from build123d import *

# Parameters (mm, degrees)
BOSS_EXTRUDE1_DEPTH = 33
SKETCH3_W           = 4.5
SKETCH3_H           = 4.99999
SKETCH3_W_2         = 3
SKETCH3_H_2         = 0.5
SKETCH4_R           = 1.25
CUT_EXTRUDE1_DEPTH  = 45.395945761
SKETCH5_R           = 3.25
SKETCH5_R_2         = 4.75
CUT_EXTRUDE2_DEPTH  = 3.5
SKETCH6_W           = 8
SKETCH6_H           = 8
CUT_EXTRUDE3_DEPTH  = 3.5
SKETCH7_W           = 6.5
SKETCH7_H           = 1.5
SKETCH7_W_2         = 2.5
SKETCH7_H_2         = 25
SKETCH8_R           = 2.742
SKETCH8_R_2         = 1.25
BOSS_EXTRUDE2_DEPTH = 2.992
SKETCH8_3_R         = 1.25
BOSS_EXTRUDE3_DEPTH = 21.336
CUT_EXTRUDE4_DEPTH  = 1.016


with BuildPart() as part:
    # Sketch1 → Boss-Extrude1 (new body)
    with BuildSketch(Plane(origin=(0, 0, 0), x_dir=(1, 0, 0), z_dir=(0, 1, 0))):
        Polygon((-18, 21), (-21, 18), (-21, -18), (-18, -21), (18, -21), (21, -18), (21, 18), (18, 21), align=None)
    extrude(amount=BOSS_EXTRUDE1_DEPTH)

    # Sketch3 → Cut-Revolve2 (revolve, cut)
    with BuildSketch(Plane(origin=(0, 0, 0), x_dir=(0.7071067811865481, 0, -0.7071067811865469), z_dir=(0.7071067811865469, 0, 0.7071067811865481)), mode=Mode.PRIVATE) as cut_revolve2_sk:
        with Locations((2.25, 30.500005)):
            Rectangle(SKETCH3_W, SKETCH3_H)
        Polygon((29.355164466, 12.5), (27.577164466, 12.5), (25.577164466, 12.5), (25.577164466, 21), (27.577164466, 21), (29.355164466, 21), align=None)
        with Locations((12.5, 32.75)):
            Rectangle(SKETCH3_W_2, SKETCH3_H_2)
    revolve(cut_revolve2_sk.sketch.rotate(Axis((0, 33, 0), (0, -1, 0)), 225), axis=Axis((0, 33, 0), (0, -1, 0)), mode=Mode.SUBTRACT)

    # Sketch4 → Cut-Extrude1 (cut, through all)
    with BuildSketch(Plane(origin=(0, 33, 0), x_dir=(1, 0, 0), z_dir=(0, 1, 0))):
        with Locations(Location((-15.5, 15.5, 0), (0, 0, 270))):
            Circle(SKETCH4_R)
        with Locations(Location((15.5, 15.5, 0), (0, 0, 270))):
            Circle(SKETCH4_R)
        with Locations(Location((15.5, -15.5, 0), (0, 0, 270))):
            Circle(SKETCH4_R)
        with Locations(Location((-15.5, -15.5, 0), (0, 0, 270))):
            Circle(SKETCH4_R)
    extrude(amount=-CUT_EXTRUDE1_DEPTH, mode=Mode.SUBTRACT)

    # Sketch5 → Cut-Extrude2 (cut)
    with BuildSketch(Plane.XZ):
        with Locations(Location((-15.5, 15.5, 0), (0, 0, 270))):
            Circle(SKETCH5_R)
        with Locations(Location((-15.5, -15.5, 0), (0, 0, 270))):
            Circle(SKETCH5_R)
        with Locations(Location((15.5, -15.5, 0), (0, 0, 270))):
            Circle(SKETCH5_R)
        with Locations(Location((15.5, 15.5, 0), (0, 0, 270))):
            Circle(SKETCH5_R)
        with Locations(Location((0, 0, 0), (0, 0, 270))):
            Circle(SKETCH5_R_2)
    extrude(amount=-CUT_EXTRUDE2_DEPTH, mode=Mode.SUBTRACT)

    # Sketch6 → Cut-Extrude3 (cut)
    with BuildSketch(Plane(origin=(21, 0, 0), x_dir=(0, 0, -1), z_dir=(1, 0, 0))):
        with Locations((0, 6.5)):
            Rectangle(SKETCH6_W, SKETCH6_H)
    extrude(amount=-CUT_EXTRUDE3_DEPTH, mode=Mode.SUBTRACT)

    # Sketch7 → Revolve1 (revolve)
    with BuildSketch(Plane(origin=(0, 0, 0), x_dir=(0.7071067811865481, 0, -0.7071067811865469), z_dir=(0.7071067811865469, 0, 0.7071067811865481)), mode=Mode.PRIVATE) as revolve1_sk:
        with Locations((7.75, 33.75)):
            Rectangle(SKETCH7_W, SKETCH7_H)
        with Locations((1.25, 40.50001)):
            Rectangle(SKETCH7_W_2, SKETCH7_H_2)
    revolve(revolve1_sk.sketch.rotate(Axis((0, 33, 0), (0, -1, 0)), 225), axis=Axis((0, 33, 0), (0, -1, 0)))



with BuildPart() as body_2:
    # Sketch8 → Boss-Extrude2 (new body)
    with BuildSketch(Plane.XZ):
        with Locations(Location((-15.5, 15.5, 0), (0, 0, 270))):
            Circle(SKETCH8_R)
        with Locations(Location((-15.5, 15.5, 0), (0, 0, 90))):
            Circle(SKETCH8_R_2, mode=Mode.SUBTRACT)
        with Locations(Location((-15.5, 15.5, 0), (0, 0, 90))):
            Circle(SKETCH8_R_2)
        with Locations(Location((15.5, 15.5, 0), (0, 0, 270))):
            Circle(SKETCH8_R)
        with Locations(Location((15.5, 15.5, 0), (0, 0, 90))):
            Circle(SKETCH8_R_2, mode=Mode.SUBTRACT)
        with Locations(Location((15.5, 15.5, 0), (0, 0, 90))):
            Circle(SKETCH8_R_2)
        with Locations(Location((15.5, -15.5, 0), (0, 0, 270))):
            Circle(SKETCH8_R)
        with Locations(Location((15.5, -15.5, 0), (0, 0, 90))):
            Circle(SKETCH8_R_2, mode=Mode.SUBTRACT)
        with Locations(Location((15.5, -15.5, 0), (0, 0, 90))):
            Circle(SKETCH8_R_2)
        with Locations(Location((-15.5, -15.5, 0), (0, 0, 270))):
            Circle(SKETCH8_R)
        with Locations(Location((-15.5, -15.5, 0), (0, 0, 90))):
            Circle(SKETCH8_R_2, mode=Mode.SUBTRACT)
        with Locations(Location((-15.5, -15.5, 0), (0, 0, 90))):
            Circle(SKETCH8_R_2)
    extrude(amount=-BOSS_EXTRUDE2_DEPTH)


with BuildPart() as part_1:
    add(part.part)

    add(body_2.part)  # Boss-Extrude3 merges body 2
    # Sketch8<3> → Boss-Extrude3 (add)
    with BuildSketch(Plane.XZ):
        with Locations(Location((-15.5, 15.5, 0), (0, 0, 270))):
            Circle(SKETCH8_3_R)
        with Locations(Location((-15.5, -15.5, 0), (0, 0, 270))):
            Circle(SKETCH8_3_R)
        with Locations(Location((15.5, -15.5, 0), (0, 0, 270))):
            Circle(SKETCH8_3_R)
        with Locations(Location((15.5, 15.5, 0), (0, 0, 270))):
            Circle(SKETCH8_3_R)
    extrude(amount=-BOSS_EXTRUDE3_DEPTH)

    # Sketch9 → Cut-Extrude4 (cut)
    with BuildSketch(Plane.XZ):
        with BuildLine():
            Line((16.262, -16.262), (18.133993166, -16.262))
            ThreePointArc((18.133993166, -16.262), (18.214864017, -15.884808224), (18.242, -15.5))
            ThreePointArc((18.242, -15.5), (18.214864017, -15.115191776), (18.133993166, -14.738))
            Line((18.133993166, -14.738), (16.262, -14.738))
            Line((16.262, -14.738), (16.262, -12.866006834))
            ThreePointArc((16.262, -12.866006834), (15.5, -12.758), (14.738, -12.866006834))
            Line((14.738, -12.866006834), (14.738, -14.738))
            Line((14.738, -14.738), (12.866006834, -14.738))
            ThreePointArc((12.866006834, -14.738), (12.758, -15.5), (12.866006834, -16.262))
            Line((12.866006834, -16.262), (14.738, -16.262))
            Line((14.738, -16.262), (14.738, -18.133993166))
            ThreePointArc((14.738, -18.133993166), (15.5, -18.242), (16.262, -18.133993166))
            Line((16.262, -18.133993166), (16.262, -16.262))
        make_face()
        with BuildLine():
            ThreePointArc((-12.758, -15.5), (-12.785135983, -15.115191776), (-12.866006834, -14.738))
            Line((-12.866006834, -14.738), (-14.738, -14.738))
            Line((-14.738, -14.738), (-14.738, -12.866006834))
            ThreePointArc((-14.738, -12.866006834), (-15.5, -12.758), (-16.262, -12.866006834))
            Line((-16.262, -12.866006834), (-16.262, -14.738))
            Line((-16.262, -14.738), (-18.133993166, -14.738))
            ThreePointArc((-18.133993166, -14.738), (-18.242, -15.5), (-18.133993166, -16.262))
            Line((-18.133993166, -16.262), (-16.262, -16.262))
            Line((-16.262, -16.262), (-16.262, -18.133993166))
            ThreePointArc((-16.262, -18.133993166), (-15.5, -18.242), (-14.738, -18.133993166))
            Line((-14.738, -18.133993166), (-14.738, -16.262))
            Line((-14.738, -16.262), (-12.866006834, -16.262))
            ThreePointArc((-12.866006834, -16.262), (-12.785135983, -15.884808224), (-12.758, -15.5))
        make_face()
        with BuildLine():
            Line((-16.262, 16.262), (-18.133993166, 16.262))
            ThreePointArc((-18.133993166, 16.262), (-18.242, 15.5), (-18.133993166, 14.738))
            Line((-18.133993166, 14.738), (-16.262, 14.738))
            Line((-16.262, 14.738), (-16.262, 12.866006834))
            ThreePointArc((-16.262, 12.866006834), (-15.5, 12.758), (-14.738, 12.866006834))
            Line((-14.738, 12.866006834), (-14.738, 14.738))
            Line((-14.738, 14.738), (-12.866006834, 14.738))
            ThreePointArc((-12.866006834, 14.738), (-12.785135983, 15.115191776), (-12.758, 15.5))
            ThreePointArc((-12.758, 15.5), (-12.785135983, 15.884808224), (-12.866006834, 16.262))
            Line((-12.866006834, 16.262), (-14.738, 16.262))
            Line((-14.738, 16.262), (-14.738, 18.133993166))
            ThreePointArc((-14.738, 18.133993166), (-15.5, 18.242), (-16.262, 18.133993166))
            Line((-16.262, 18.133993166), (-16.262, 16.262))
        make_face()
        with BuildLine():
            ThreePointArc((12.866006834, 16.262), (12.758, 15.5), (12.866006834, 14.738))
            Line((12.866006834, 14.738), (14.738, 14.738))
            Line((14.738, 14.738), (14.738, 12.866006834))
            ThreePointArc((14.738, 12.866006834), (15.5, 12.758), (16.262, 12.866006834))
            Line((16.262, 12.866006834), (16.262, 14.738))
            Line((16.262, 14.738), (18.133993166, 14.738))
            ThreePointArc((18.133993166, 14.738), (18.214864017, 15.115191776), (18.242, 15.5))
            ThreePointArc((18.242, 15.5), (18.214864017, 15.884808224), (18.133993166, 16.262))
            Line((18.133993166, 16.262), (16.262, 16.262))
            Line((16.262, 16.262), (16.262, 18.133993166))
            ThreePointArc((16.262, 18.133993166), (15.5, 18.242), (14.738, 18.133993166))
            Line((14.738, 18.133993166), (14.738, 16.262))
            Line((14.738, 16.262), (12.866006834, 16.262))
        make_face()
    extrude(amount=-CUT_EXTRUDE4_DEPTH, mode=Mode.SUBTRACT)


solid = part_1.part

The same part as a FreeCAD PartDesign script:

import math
import FreeCAD as App
import Part
import Sketcher

V = App.Vector

doc = App.newDocument("Part")
body = doc.addObject("PartDesign::Body", "Body")

# Sketch on XZ plane
sketch1 = body.newObject("Sketcher::SketchObject", "Sketch")
sketch1.AttachmentSupport = (doc.getObject("XZ_Plane"), [""])
sketch1.MapMode = "FlatFace"
sketch1.addGeometry(Part.LineSegment(V(-18, -21, 0), V(-21, -18, 0)), False)
sketch1.addGeometry(Part.LineSegment(V(-21, -18, 0), V(-21, 18, 0)), False)
sketch1.addGeometry(Part.LineSegment(V(-21, 18, 0), V(-18, 21, 0)), False)
sketch1.addGeometry(Part.LineSegment(V(-18, 21, 0), V(18, 21, 0)), False)
sketch1.addGeometry(Part.LineSegment(V(18, 21, 0), V(21, 18, 0)), False)
sketch1.addGeometry(Part.LineSegment(V(21, 18, 0), V(21, -18, 0)), False)
sketch1.addGeometry(Part.LineSegment(V(21, -18, 0), V(18, -21, 0)), False)
sketch1.addGeometry(Part.LineSegment(V(18, -21, 0), V(-18, -21, 0)), False)
sketch1.addConstraint(Sketcher.Constraint("Coincident", 0, 2, 1, 1))
sketch1.addConstraint(Sketcher.Constraint("Coincident", 1, 2, 2, 1))
sketch1.addConstraint(Sketcher.Constraint("Coincident", 2, 2, 3, 1))
sketch1.addConstraint(Sketcher.Constraint("Coincident", 3, 2, 4, 1))
sketch1.addConstraint(Sketcher.Constraint("Coincident", 4, 2, 5, 1))
sketch1.addConstraint(Sketcher.Constraint("Coincident", 5, 2, 6, 1))
sketch1.addConstraint(Sketcher.Constraint("Coincident", 6, 2, 7, 1))
sketch1.addConstraint(Sketcher.Constraint("Coincident", 7, 2, 0, 1))
sketch1.addConstraint(Sketcher.Constraint("Vertical", 1))
sketch1.addConstraint(Sketcher.Constraint("Horizontal", 3))
sketch1.addConstraint(Sketcher.Constraint("Vertical", 5))
sketch1.addConstraint(Sketcher.Constraint("Horizontal", 7))
sketch1.addConstraint(Sketcher.Constraint("Symmetric", 0, 2, 4, 2, -1, 1))
sketch1.addConstraint(Sketcher.Constraint("Symmetric", 2, 2, 6, 2, -1, 1))
sketch1.addConstraint(Sketcher.Constraint("Perpendicular", 0, 2))
sketch1.addConstraint(Sketcher.Constraint("Perpendicular", 2, 4))
sketch1.addConstraint(Sketcher.Constraint("Perpendicular", 4, 6))
sketch1.addConstraint(Sketcher.Constraint("Horizontal", 1, 2, 4, 2))
sketch1.addConstraint(Sketcher.Constraint("Vertical", 3, 2, 6, 2))
sketch1.addConstraint(Sketcher.Constraint("Equal", 7, 1))
sketch1.addConstraint(Sketcher.Constraint("DistanceX", 3, 1, 3, 2, 36.0))
sketch1.addConstraint(Sketcher.Constraint("DistanceX", 0, 2, -1, 1, 21.0))
pad1 = body.newObject("PartDesign::Pad", "Pad")
pad1.Profile = sketch1
pad1.Length = 33
pad1.Reversed = True

# Sketch on an angled plane
sketch2 = body.newObject("Sketcher::SketchObject", "Sketch001")
sketch2.Placement = App.Placement(V(0, 0, 0), App.Rotation(V(0.707106781, 0, -0.707106781), V(0, 0.999999999, 0), V(0.707106781, 0, 0.707106781), "ZXY"))
sketch2.addGeometry(Part.LineSegment(V(0, 33, 0), V(0, 28, 0)), False)
sketch2.addGeometry(Part.LineSegment(V(0, 28, 0), V(4.5, 28, 0)), False)
sketch2.addGeometry(Part.LineSegment(V(4.5, 28, 0), V(4.5, 33, 0)), False)
sketch2.addGeometry(Part.LineSegment(V(4.5, 33, 0), V(0, 33, 0)), False)
sketch2.addGeometry(Part.LineSegment(V(25.58, 12.5, 0), V(29.36, 12.5, 0)), False)
sketch2.addGeometry(Part.LineSegment(V(29.36, 12.5, 0), V(29.36, 21, 0)), False)
sketch2.addGeometry(Part.LineSegment(V(29.36, 21, 0), V(25.58, 21, 0)), False)
sketch2.addGeometry(Part.LineSegment(V(25.58, 21, 0), V(25.58, 12.5, 0)), False)
sketch2.addGeometry(Part.LineSegment(V(11, 33, 0), V(11, 32.5, 0)), False)
sketch2.addGeometry(Part.LineSegment(V(11, 32.5, 0), V(14, 32.5, 0)), False)
sketch2.addGeometry(Part.LineSegment(V(14, 32.5, 0), V(14, 33, 0)), False)
sketch2.addGeometry(Part.LineSegment(V(14, 33, 0), V(11, 33, 0)), False)
sketch2.addConstraint(Sketcher.Constraint("Coincident", 0, 2, 1, 1))
sketch2.addConstraint(Sketcher.Constraint("Coincident", 1, 2, 2, 1))
sketch2.addConstraint(Sketcher.Constraint("Coincident", 2, 2, 3, 1))
sketch2.addConstraint(Sketcher.Constraint("Coincident", 3, 2, 0, 1))
sketch2.addConstraint(Sketcher.Constraint("Coincident", 4, 2, 5, 1))
sketch2.addConstraint(Sketcher.Constraint("Coincident", 5, 2, 6, 1))
sketch2.addConstraint(Sketcher.Constraint("Coincident", 6, 2, 7, 1))
sketch2.addConstraint(Sketcher.Constraint("Coincident", 7, 2, 4, 1))
sketch2.addConstraint(Sketcher.Constraint("Coincident", 8, 2, 9, 1))
sketch2.addConstraint(Sketcher.Constraint("Coincident", 9, 2, 10, 1))
sketch2.addConstraint(Sketcher.Constraint("Coincident", 10, 2, 11, 1))
sketch2.addConstraint(Sketcher.Constraint("Coincident", 11, 2, 8, 1))
sketch2.addConstraint(Sketcher.Constraint("Vertical", 0))
sketch2.addConstraint(Sketcher.Constraint("Horizontal", 1))
sketch2.addConstraint(Sketcher.Constraint("Vertical", 2))
sketch2.addConstraint(Sketcher.Constraint("Horizontal", 3))
sketch2.addConstraint(Sketcher.Constraint("Horizontal", 4))
sketch2.addConstraint(Sketcher.Constraint("Vertical", 5))
sketch2.addConstraint(Sketcher.Constraint("Horizontal", 6))
sketch2.addConstraint(Sketcher.Constraint("Vertical", 7))
sketch2.addConstraint(Sketcher.Constraint("Vertical", 8))
sketch2.addConstraint(Sketcher.Constraint("Horizontal", 9))
sketch2.addConstraint(Sketcher.Constraint("Vertical", 10))
sketch2.addConstraint(Sketcher.Constraint("Horizontal", 11))
sketch2.addConstraint(Sketcher.Constraint("PointOnObject", 0, 2, -2))
sketch2.addConstraint(Sketcher.Constraint("Horizontal", 3, 2, 10, 2))
sketch2.addConstraint(Sketcher.Constraint("DistanceX", 9, 1, 9, 2, 3.0))
sketch2.addConstraint(Sketcher.Constraint("DistanceX", 1, 1, 1, 2, 4.5))
sketch2.addConstraint(Sketcher.Constraint("DistanceY", 5, 1, 5, 2, 8.5))
sketch2.addConstraint(Sketcher.Constraint("DistanceY", 8, 2, 8, 1, 0.5))
sketch2.addConstraint(Sketcher.Constraint("DistanceY", -1, 1, 2, 2, 33.0))
sketch2.addConstraint(Sketcher.Constraint("DistanceY", -1, 1, 5, 2, 21.0))
sketch2.addConstraint(Sketcher.Constraint("DistanceX", -1, 1, 8, 2, 11.0))
sketch2.addConstraint(Sketcher.Constraint("DistanceX", 4, 1, 4, 2, 3.778))
sketch2.addConstraint(Sketcher.Constraint("DistanceY", 0, 2, 0, 1, 4.99999))
sketch2.addConstraint(Sketcher.Constraint("DistanceX", -1, 1, 4, 2, 29.355164))
groove = body.newObject("PartDesign::Groove", "Groove")
groove.Profile = sketch2
groove.ReferenceAxis = (sketch2, ["V_Axis"])
groove.Angle = 360

# Sketch on XZ plane
sketch3 = body.newObject("Sketcher::SketchObject", "Sketch002")
sketch3.AttachmentSupport = (doc.getObject("XZ_Plane"), [""])
sketch3.MapMode = "FlatFace"
sketch3.AttachmentOffset = App.Placement(V(0, 0, -33), App.Rotation())
sketch3.addGeometry(Part.Circle(V(-15.5, -15.5, 0), V(0, 0, 1), 1.2), False)
sketch3.addGeometry(Part.Circle(V(15.5, -15.5, 0), V(0, 0, 1), 1.2), False)
sketch3.addGeometry(Part.Circle(V(15.5, 15.5, 0), V(0, 0, 1), 1.2), False)
sketch3.addGeometry(Part.Circle(V(-15.5, 15.5, 0), V(0, 0, 1), 1.2), False)
sketch3.addConstraint(Sketcher.Constraint("Equal", 0, 1))
sketch3.addConstraint(Sketcher.Constraint("Equal", 1, 2))
sketch3.addConstraint(Sketcher.Constraint("Equal", 2, 3))
sketch3.addConstraint(Sketcher.Constraint("Symmetric", 0, 3, 2, 3, -1, 1))
sketch3.addConstraint(Sketcher.Constraint("Symmetric", 1, 3, 3, 3, -1, 1))
sketch3.addConstraint(Sketcher.Constraint("Symmetric", 0, 3, 1, 3, -2))
sketch3.addConstraint(Sketcher.Constraint("Diameter", 0, 2.5))
sketch3.addConstraint(Sketcher.Constraint("DistanceX", 0, 3, 1, 3, 31.0))
sketch3.addConstraint(Sketcher.Constraint("DistanceY", 1, 3, 2, 3, 31.0))
pocket1 = body.newObject("PartDesign::Pocket", "Pocket")
pocket1.Profile = sketch3
pocket1.Type = "ThroughAll"
pocket1.Reversed = True

# Sketch on XZ plane
sketch4 = body.newObject("Sketcher::SketchObject", "Sketch003")
sketch4.AttachmentSupport = (doc.getObject("XZ_Plane"), [""])
sketch4.MapMode = "FlatFace"
sketch4.addGeometry(Part.Circle(V(-15.5, 15.5, 0), V(0, 0, 1), 3.2), False)
sketch4.addGeometry(Part.Circle(V(-15.5, -15.5, 0), V(0, 0, 1), 3.2), False)
sketch4.addGeometry(Part.Circle(V(15.5, -15.5, 0), V(0, 0, 1), 3.2), False)
sketch4.addGeometry(Part.Circle(V(15.5, 15.5, 0), V(0, 0, 1), 3.2), False)
sketch4.addGeometry(Part.Circle(V(0, 0, 0), V(0, 0, 1), 4.8), False)
sketch4.addConstraint(Sketcher.Constraint("Coincident", 4, 3, -1, 1))
sketch4.addConstraint(Sketcher.Constraint("Equal", 0, 1))
sketch4.addConstraint(Sketcher.Constraint("Equal", 1, 2))
sketch4.addConstraint(Sketcher.Constraint("Equal", 2, 3))
sketch4.addConstraint(Sketcher.Constraint("Symmetric", 0, 3, 2, 3, -1, 1))
sketch4.addConstraint(Sketcher.Constraint("Symmetric", 1, 3, 3, 3, -1, 1))
sketch4.addConstraint(Sketcher.Constraint("Symmetric", 1, 3, 2, 3, -2))
sketch4.addConstraint(Sketcher.Constraint("Diameter", 0, 6.5))
sketch4.addConstraint(Sketcher.Constraint("Diameter", 4, 9.5))
sketch4.addConstraint(Sketcher.Constraint("DistanceY", 1, 3, 0, 3, 31.0))
sketch4.addConstraint(Sketcher.Constraint("DistanceX", 1, 3, 2, 3, 31.0))
pocket2 = body.newObject("PartDesign::Pocket", "Pocket001")
pocket2.Profile = sketch4
pocket2.Length = 3.5

# Sketch on YZ plane
sketch5 = body.newObject("Sketcher::SketchObject", "Sketch004")
sketch5.AttachmentSupport = (doc.getObject("YZ_Plane"), [""])
sketch5.MapMode = "FlatFace"
sketch5.AttachmentOffset = App.Placement(V(0, 0, 21), App.Rotation())
sketch5.addGeometry(Part.LineSegment(V(10, 4, 0), V(2, 4, 0)), False)
sketch5.addGeometry(Part.LineSegment(V(2, 4, 0), V(2, -4, 0)), False)
sketch5.addGeometry(Part.LineSegment(V(2, -4, 0), V(10, -4, 0)), False)
sketch5.addGeometry(Part.LineSegment(V(10, -4, 0), V(10, 4, 0)), False)
sketch5.addConstraint(Sketcher.Constraint("Coincident", 0, 2, 1, 1))
sketch5.addConstraint(Sketcher.Constraint("Coincident", 1, 2, 2, 1))
sketch5.addConstraint(Sketcher.Constraint("Coincident", 2, 2, 3, 1))
sketch5.addConstraint(Sketcher.Constraint("Coincident", 3, 2, 0, 1))
sketch5.addConstraint(Sketcher.Constraint("Horizontal", 0))
sketch5.addConstraint(Sketcher.Constraint("Vertical", 1))
sketch5.addConstraint(Sketcher.Constraint("Horizontal", 2))
sketch5.addConstraint(Sketcher.Constraint("Vertical", 3))
sketch5.addConstraint(Sketcher.Constraint("Equal", 2, 1))
sketch5.addConstraint(Sketcher.Constraint("DistanceX", 0, 2, 0, 1, 8.0))
sketch5.addConstraint(Sketcher.Constraint("DistanceY", -1, 1, 0, 2, 4.0))
sketch5.addConstraint(Sketcher.Constraint("DistanceX", -1, 1, 0, 2, 2.5))
pocket3 = body.newObject("PartDesign::Pocket", "Pocket002")
pocket3.Profile = sketch5
pocket3.Length = 3.5

# Sketch on an angled plane
sketch6 = body.newObject("Sketcher::SketchObject", "Sketch005")
sketch6.Placement = App.Placement(V(0, 0, 0), App.Rotation(V(0.707106781, 0, -0.707106781), V(0, 0.999999999, 0), V(0.707106781, 0, 0.707106781), "ZXY"))
sketch6.addGeometry(Part.LineSegment(V(4.5, 34.5, 0), V(4.5, 33, 0)), False)
sketch6.addGeometry(Part.LineSegment(V(4.5, 33, 0), V(11, 33, 0)), False)
sketch6.addGeometry(Part.LineSegment(V(11, 33, 0), V(11, 34.5, 0)), False)
sketch6.addGeometry(Part.LineSegment(V(11, 34.5, 0), V(4.5, 34.5, 0)), False)
sketch6.addGeometry(Part.LineSegment(V(0, 53, 0), V(0, 28, 0)), False)
sketch6.addGeometry(Part.LineSegment(V(0, 28, 0), V(2.5, 28, 0)), False)
sketch6.addGeometry(Part.LineSegment(V(2.5, 28, 0), V(2.5, 53, 0)), False)
sketch6.addGeometry(Part.LineSegment(V(2.5, 53, 0), V(0, 53, 0)), False)
sketch6.addConstraint(Sketcher.Constraint("Coincident", 0, 2, 1, 1))
sketch6.addConstraint(Sketcher.Constraint("Coincident", 1, 2, 2, 1))
sketch6.addConstraint(Sketcher.Constraint("Coincident", 2, 2, 3, 1))
sketch6.addConstraint(Sketcher.Constraint("Coincident", 3, 2, 0, 1))
sketch6.addConstraint(Sketcher.Constraint("Coincident", 4, 2, 5, 1))
sketch6.addConstraint(Sketcher.Constraint("Coincident", 5, 2, 6, 1))
sketch6.addConstraint(Sketcher.Constraint("Coincident", 6, 2, 7, 1))
sketch6.addConstraint(Sketcher.Constraint("Coincident", 7, 2, 4, 1))
sketch6.addConstraint(Sketcher.Constraint("Vertical", 0))
sketch6.addConstraint(Sketcher.Constraint("Horizontal", 1))
sketch6.addConstraint(Sketcher.Constraint("Vertical", 2))
sketch6.addConstraint(Sketcher.Constraint("Horizontal", 3))
sketch6.addConstraint(Sketcher.Constraint("Vertical", 4))
sketch6.addConstraint(Sketcher.Constraint("Horizontal", 5))
sketch6.addConstraint(Sketcher.Constraint("Vertical", 6))
sketch6.addConstraint(Sketcher.Constraint("Horizontal", 7))
sketch6.addConstraint(Sketcher.Constraint("PointOnObject", 4, 2, -2))
sketch6.addConstraint(Sketcher.Constraint("DistanceY", 4, 2, 4, 1, 25.0))
sketch6.addConstraint(Sketcher.Constraint("DistanceX", 1, 1, 1, 2, 6.5))
sketch6.addConstraint(Sketcher.Constraint("DistanceX", 5, 1, 5, 2, 2.5))
sketch6.addConstraint(Sketcher.Constraint("DistanceY", 0, 2, 0, 1, 1.5))
sketch6.addConstraint(Sketcher.Constraint("DistanceY", -1, 1, 0, 2, 33.0))
sketch6.addConstraint(Sketcher.Constraint("DistanceX", -1, 1, 1, 2, 11.0))
sketch6.addConstraint(Sketcher.Constraint("DistanceY", -1, 1, 4, 2, 28.00001))
revolution = body.newObject("PartDesign::Revolution", "Revolution")
revolution.Profile = sketch6
revolution.ReferenceAxis = (sketch6, ["V_Axis"])
revolution.Angle = 360
body2 = doc.addObject("PartDesign::Body", "Body001")
body2.AllowCompound = True

# Sketch on XZ plane
sketch7 = body2.newObject("Sketcher::SketchObject", "Sketch006")
sketch7.AttachmentSupport = (doc.getObject("XZ_Plane001"), [""])
sketch7.MapMode = "FlatFace"
sketch7.addGeometry(Part.Circle(V(-15.5, 15.5, 0), V(0, 0, 1), 2.7), False)
sketch7.addGeometry(Part.Circle(V(15.5, 15.5, 0), V(0, 0, 1), 2.7), False)
sketch7.addGeometry(Part.Circle(V(15.5, -15.5, 0), V(0, 0, 1), 2.7), False)
sketch7.addGeometry(Part.Circle(V(-15.5, -15.5, 0), V(0, 0, 1), 2.7), False)
sketch7.addConstraint(Sketcher.Constraint("Equal", 0, 1))
sketch7.addConstraint(Sketcher.Constraint("Equal", 1, 2))
sketch7.addConstraint(Sketcher.Constraint("Equal", 2, 3))
sketch7.addConstraint(Sketcher.Constraint("Symmetric", 0, 3, 2, 3, -1, 1))
sketch7.addConstraint(Sketcher.Constraint("Symmetric", 1, 3, 3, 3, -1, 1))
sketch7.addConstraint(Sketcher.Constraint("Symmetric", 0, 3, 1, 3, -2))
sketch7.addConstraint(Sketcher.Constraint("Diameter", 0, 5.484))
sketch7.addConstraint(Sketcher.Constraint("DistanceX", 0, 3, 1, 3, 31.0))
sketch7.addConstraint(Sketcher.Constraint("DistanceY", 2, 3, 1, 3, 31.0))
pad2 = body2.newObject("PartDesign::Pad", "Pad001")
pad2.Profile = sketch7
pad2.Length = 2.992
pad2.Reversed = True
body.AllowCompound = True
doc.recompute()

boolean = body.newObject("PartDesign::Boolean", "Boolean")
boolean.Type = "Fuse"
boolean.addObjects([body2])

# Sketch on XZ plane
sketch8 = body.newObject("Sketcher::SketchObject", "Sketch007")
sketch8.AttachmentSupport = (doc.getObject("XZ_Plane"), [""])
sketch8.MapMode = "FlatFace"
sketch8.addGeometry(Part.Circle(V(-15.5, 15.5, 0), V(0, 0, 1), 1.2), False)
sketch8.addGeometry(Part.Circle(V(-15.5, -15.5, 0), V(0, 0, 1), 1.2), False)
sketch8.addGeometry(Part.Circle(V(15.5, -15.5, 0), V(0, 0, 1), 1.2), False)
sketch8.addGeometry(Part.Circle(V(15.5, 15.5, 0), V(0, 0, 1), 1.2), False)
sketch8.addConstraint(Sketcher.Constraint("Equal", 0, 1))
sketch8.addConstraint(Sketcher.Constraint("Equal", 1, 2))
sketch8.addConstraint(Sketcher.Constraint("Equal", 2, 3))
sketch8.addConstraint(Sketcher.Constraint("Symmetric", 0, 3, 2, 3, -1, 1))
sketch8.addConstraint(Sketcher.Constraint("Symmetric", 1, 3, 3, 3, -1, 1))
sketch8.addConstraint(Sketcher.Constraint("Symmetric", 1, 3, 2, 3, -2))
sketch8.addConstraint(Sketcher.Constraint("Diameter", 0, 2.5))
sketch8.addConstraint(Sketcher.Constraint("DistanceY", 1, 3, 0, 3, 31.0))
sketch8.addConstraint(Sketcher.Constraint("DistanceX", 1, 3, 2, 3, 31.0))
pad3 = body.newObject("PartDesign::Pad", "Pad002")
pad3.Profile = sketch8
pad3.Length = 21.336
pad3.Reversed = True

# Sketch on XZ plane
sketch9 = body.newObject("Sketcher::SketchObject", "Sketch008")
sketch9.AttachmentSupport = (doc.getObject("XZ_Plane"), [""])
sketch9.MapMode = "FlatFace"
sketch9.addGeometry(Part.LineSegment(V(16.3, -16.3, 0), V(18.1, -16.3, 0)), False)
sketch9.addGeometry(Part.ArcOfCircle(Part.Circle(V(15.5, -15.5, 0), V(0, 0, 1), 2.7), math.radians(-16.13), math.radians(0)), False)
sketch9.addGeometry(Part.ArcOfCircle(Part.Circle(V(15.5, -15.5, 0), V(0, 0, 1), 2.7), math.radians(0), math.radians(16.13)), False)
sketch9.addGeometry(Part.LineSegment(V(18.1, -14.7, 0), V(16.3, -14.7, 0)), False)
sketch9.addGeometry(Part.LineSegment(V(16.3, -14.7, 0), V(16.3, -12.9, 0)), False)
sketch9.addGeometry(Part.ArcOfCircle(Part.Circle(V(15.5, -15.5, 0), V(0, 0, 1), 2.7), math.radians(74), math.radians(106)), False)
sketch9.addGeometry(Part.LineSegment(V(14.7, -12.9, 0), V(14.7, -14.7, 0)), False)
sketch9.addGeometry(Part.LineSegment(V(14.7, -14.7, 0), V(12.9, -14.7, 0)), False)
sketch9.addGeometry(Part.ArcOfCircle(Part.Circle(V(15.5, -15.5, 0), V(0, 0, 1), 2.7), math.radians(164), math.radians(196)), False)
sketch9.addGeometry(Part.LineSegment(V(12.9, -16.3, 0), V(14.7, -16.3, 0)), False)
sketch9.addGeometry(Part.LineSegment(V(14.7, -16.3, 0), V(14.7, -18.1, 0)), False)
sketch9.addGeometry(Part.ArcOfCircle(Part.Circle(V(15.5, -15.5, 0), V(0, 0, 1), 2.7), math.radians(-106), math.radians(-74)), False)
sketch9.addGeometry(Part.LineSegment(V(16.3, -18.1, 0), V(16.3, -16.3, 0)), False)
sketch9.addGeometry(Part.ArcOfCircle(Part.Circle(V(-15.5, -15.5, 0), V(0, 0, 1), 2.7), math.radians(0), math.radians(16.13)), False)
sketch9.addGeometry(Part.LineSegment(V(-12.9, -14.7, 0), V(-14.7, -14.7, 0)), False)
sketch9.addGeometry(Part.LineSegment(V(-14.7, -14.7, 0), V(-14.7, -12.9, 0)), False)
sketch9.addGeometry(Part.ArcOfCircle(Part.Circle(V(-15.5, -15.5, 0), V(0, 0, 1), 2.7), math.radians(74), math.radians(106)), False)
sketch9.addGeometry(Part.LineSegment(V(-16.3, -12.9, 0), V(-16.3, -14.7, 0)), False)
sketch9.addGeometry(Part.LineSegment(V(-16.3, -14.7, 0), V(-18.1, -14.7, 0)), False)
sketch9.addGeometry(Part.ArcOfCircle(Part.Circle(V(-15.5, -15.5, 0), V(0, 0, 1), 2.7), math.radians(164), math.radians(196)), False)
sketch9.addGeometry(Part.LineSegment(V(-18.1, -16.3, 0), V(-16.3, -16.3, 0)), False)
sketch9.addGeometry(Part.LineSegment(V(-16.3, -16.3, 0), V(-16.3, -18.1, 0)), False)
sketch9.addGeometry(Part.ArcOfCircle(Part.Circle(V(-15.5, -15.5, 0), V(0, 0, 1), 2.7), math.radians(-106), math.radians(-74)), False)
sketch9.addGeometry(Part.LineSegment(V(-14.7, -18.1, 0), V(-14.7, -16.3, 0)), False)
sketch9.addGeometry(Part.LineSegment(V(-14.7, -16.3, 0), V(-12.9, -16.3, 0)), False)
sketch9.addGeometry(Part.ArcOfCircle(Part.Circle(V(-15.5, -15.5, 0), V(0, 0, 1), 2.7), math.radians(-16.13), math.radians(0)), False)
sketch9.addGeometry(Part.LineSegment(V(-16.3, 16.3, 0), V(-18.1, 16.3, 0)), False)
sketch9.addGeometry(Part.ArcOfCircle(Part.Circle(V(-15.5, 15.5, 0), V(0, 0, 1), 2.7), math.radians(164), math.radians(196)), False)
sketch9.addGeometry(Part.LineSegment(V(-18.1, 14.7, 0), V(-16.3, 14.7, 0)), False)
sketch9.addGeometry(Part.LineSegment(V(-16.3, 14.7, 0), V(-16.3, 12.9, 0)), False)
sketch9.addGeometry(Part.ArcOfCircle(Part.Circle(V(-15.5, 15.5, 0), V(0, 0, 1), 2.7), math.radians(-106), math.radians(-74)), False)
sketch9.addGeometry(Part.LineSegment(V(-14.7, 12.9, 0), V(-14.7, 14.7, 0)), False)
sketch9.addGeometry(Part.LineSegment(V(-14.7, 14.7, 0), V(-12.9, 14.7, 0)), False)
sketch9.addGeometry(Part.ArcOfCircle(Part.Circle(V(-15.5, 15.5, 0), V(0, 0, 1), 2.7), math.radians(-16.13), math.radians(0)), False)
sketch9.addGeometry(Part.ArcOfCircle(Part.Circle(V(-15.5, 15.5, 0), V(0, 0, 1), 2.7), math.radians(0), math.radians(16.13)), False)
sketch9.addGeometry(Part.LineSegment(V(-12.9, 16.3, 0), V(-14.7, 16.3, 0)), False)
sketch9.addGeometry(Part.LineSegment(V(-14.7, 16.3, 0), V(-14.7, 18.1, 0)), False)
sketch9.addGeometry(Part.ArcOfCircle(Part.Circle(V(-15.5, 15.5, 0), V(0, 0, 1), 2.7), math.radians(74), math.radians(106)), False)
sketch9.addGeometry(Part.LineSegment(V(-16.3, 18.1, 0), V(-16.3, 16.3, 0)), False)
sketch9.addGeometry(Part.ArcOfCircle(Part.Circle(V(15.5, 15.5, 0), V(0, 0, 1), 2.7), math.radians(164), math.radians(196)), False)
sketch9.addGeometry(Part.LineSegment(V(12.9, 14.7, 0), V(14.7, 14.7, 0)), False)
sketch9.addGeometry(Part.LineSegment(V(14.7, 14.7, 0), V(14.7, 12.9, 0)), False)
sketch9.addGeometry(Part.ArcOfCircle(Part.Circle(V(15.5, 15.5, 0), V(0, 0, 1), 2.7), math.radians(-106), math.radians(-74)), False)
sketch9.addGeometry(Part.LineSegment(V(16.3, 12.9, 0), V(16.3, 14.7, 0)), False)
sketch9.addGeometry(Part.LineSegment(V(16.3, 14.7, 0), V(18.1, 14.7, 0)), False)
sketch9.addGeometry(Part.ArcOfCircle(Part.Circle(V(15.5, 15.5, 0), V(0, 0, 1), 2.7), math.radians(-16.13), math.radians(0)), False)
sketch9.addGeometry(Part.ArcOfCircle(Part.Circle(V(15.5, 15.5, 0), V(0, 0, 1), 2.7), math.radians(0), math.radians(16.13)), False)
sketch9.addGeometry(Part.LineSegment(V(18.1, 16.3, 0), V(16.3, 16.3, 0)), False)
sketch9.addGeometry(Part.LineSegment(V(16.3, 16.3, 0), V(16.3, 18.1, 0)), False)
sketch9.addGeometry(Part.ArcOfCircle(Part.Circle(V(15.5, 15.5, 0), V(0, 0, 1), 2.7), math.radians(74), math.radians(106)), False)
sketch9.addGeometry(Part.LineSegment(V(14.7, 18.1, 0), V(14.7, 16.3, 0)), False)
sketch9.addGeometry(Part.LineSegment(V(14.7, 16.3, 0), V(12.9, 16.3, 0)), False)
sketch9.addConstraint(Sketcher.Constraint("Coincident", 0, 2, 1, 1))
sketch9.addConstraint(Sketcher.Constraint("Tangent", 1, 2, 2, 1))
sketch9.addConstraint(Sketcher.Constraint("Coincident", 2, 2, 3, 1))
sketch9.addConstraint(Sketcher.Constraint("Coincident", 3, 2, 4, 1))
sketch9.addConstraint(Sketcher.Constraint("Coincident", 4, 2, 5, 1))
sketch9.addConstraint(Sketcher.Constraint("Coincident", 5, 2, 6, 1))
sketch9.addConstraint(Sketcher.Constraint("Coincident", 6, 2, 7, 1))
sketch9.addConstraint(Sketcher.Constraint("Coincident", 7, 2, 8, 1))
sketch9.addConstraint(Sketcher.Constraint("Coincident", 8, 2, 9, 1))
sketch9.addConstraint(Sketcher.Constraint("Coincident", 9, 2, 10, 1))
sketch9.addConstraint(Sketcher.Constraint("Coincident", 10, 2, 11, 1))
sketch9.addConstraint(Sketcher.Constraint("Coincident", 11, 2, 12, 1))
sketch9.addConstraint(Sketcher.Constraint("Coincident", 12, 2, 0, 1))
sketch9.addConstraint(Sketcher.Constraint("Coincident", 13, 2, 14, 1))
sketch9.addConstraint(Sketcher.Constraint("Coincident", 14, 2, 15, 1))
sketch9.addConstraint(Sketcher.Constraint("Coincident", 15, 2, 16, 1))
sketch9.addConstraint(Sketcher.Constraint("Coincident", 16, 2, 17, 1))
sketch9.addConstraint(Sketcher.Constraint("Coincident", 17, 2, 18, 1))
sketch9.addConstraint(Sketcher.Constraint("Coincident", 18, 2, 19, 1))
sketch9.addConstraint(Sketcher.Constraint("Coincident", 19, 2, 20, 1))
sketch9.addConstraint(Sketcher.Constraint("Coincident", 20, 2, 21, 1))
sketch9.addConstraint(Sketcher.Constraint("Coincident", 21, 2, 22, 1))
sketch9.addConstraint(Sketcher.Constraint("Coincident", 22, 2, 23, 1))
sketch9.addConstraint(Sketcher.Constraint("Coincident", 23, 2, 24, 1))
sketch9.addConstraint(Sketcher.Constraint("Coincident", 24, 2, 25, 1))
sketch9.addConstraint(Sketcher.Constraint("Tangent", 25, 2, 13, 1))
sketch9.addConstraint(Sketcher.Constraint("Coincident", 26, 2, 27, 1))
sketch9.addConstraint(Sketcher.Constraint("Coincident", 27, 2, 28, 1))
sketch9.addConstraint(Sketcher.Constraint("Coincident", 28, 2, 29, 1))
sketch9.addConstraint(Sketcher.Constraint("Coincident", 29, 2, 30, 1))
sketch9.addConstraint(Sketcher.Constraint("Coincident", 30, 2, 31, 1))
sketch9.addConstraint(Sketcher.Constraint("Coincident", 31, 2, 32, 1))
sketch9.addConstraint(Sketcher.Constraint("Coincident", 32, 2, 33, 1))
sketch9.addConstraint(Sketcher.Constraint("Tangent", 33, 2, 34, 1))
sketch9.addConstraint(Sketcher.Constraint("Coincident", 34, 2, 35, 1))
sketch9.addConstraint(Sketcher.Constraint("Coincident", 35, 2, 36, 1))
sketch9.addConstraint(Sketcher.Constraint("Coincident", 36, 2, 37, 1))
sketch9.addConstraint(Sketcher.Constraint("Coincident", 37, 2, 38, 1))
sketch9.addConstraint(Sketcher.Constraint("Coincident", 38, 2, 26, 1))
sketch9.addConstraint(Sketcher.Constraint("Coincident", 39, 2, 40, 1))
sketch9.addConstraint(Sketcher.Constraint("Coincident", 40, 2, 41, 1))
sketch9.addConstraint(Sketcher.Constraint("Coincident", 41, 2, 42, 1))
sketch9.addConstraint(Sketcher.Constraint("Coincident", 42, 2, 43, 1))
sketch9.addConstraint(Sketcher.Constraint("Coincident", 43, 2, 44, 1))
sketch9.addConstraint(Sketcher.Constraint("Coincident", 44, 2, 45, 1))
sketch9.addConstraint(Sketcher.Constraint("Tangent", 45, 2, 46, 1))
sketch9.addConstraint(Sketcher.Constraint("Coincident", 46, 2, 47, 1))
sketch9.addConstraint(Sketcher.Constraint("Coincident", 47, 2, 48, 1))
sketch9.addConstraint(Sketcher.Constraint("Coincident", 48, 2, 49, 1))
sketch9.addConstraint(Sketcher.Constraint("Coincident", 49, 2, 50, 1))
sketch9.addConstraint(Sketcher.Constraint("Coincident", 50, 2, 51, 1))
sketch9.addConstraint(Sketcher.Constraint("Coincident", 51, 2, 39, 1))
sketch9.addConstraint(Sketcher.Constraint("Horizontal", 0))
sketch9.addConstraint(Sketcher.Constraint("Horizontal", 3))
sketch9.addConstraint(Sketcher.Constraint("Vertical", 4))
sketch9.addConstraint(Sketcher.Constraint("Vertical", 6))
sketch9.addConstraint(Sketcher.Constraint("Horizontal", 7))
sketch9.addConstraint(Sketcher.Constraint("Horizontal", 9))
sketch9.addConstraint(Sketcher.Constraint("Vertical", 10))
sketch9.addConstraint(Sketcher.Constraint("Vertical", 12))
sketch9.addConstraint(Sketcher.Constraint("Horizontal", 14))
sketch9.addConstraint(Sketcher.Constraint("Vertical", 15))
sketch9.addConstraint(Sketcher.Constraint("Vertical", 17))
sketch9.addConstraint(Sketcher.Constraint("Horizontal", 18))
sketch9.addConstraint(Sketcher.Constraint("Horizontal", 20))
sketch9.addConstraint(Sketcher.Constraint("Vertical", 21))
sketch9.addConstraint(Sketcher.Constraint("Vertical", 23))
sketch9.addConstraint(Sketcher.Constraint("Horizontal", 24))
sketch9.addConstraint(Sketcher.Constraint("Horizontal", 26))
sketch9.addConstraint(Sketcher.Constraint("Horizontal", 28))
sketch9.addConstraint(Sketcher.Constraint("Vertical", 29))
sketch9.addConstraint(Sketcher.Constraint("Vertical", 31))
sketch9.addConstraint(Sketcher.Constraint("Horizontal", 32))
sketch9.addConstraint(Sketcher.Constraint("Horizontal", 35))
sketch9.addConstraint(Sketcher.Constraint("Vertical", 36))
sketch9.addConstraint(Sketcher.Constraint("Vertical", 38))
sketch9.addConstraint(Sketcher.Constraint("Horizontal", 40))
sketch9.addConstraint(Sketcher.Constraint("Vertical", 41))
sketch9.addConstraint(Sketcher.Constraint("Vertical", 43))
sketch9.addConstraint(Sketcher.Constraint("Horizontal", 44))
sketch9.addConstraint(Sketcher.Constraint("Horizontal", 47))
sketch9.addConstraint(Sketcher.Constraint("Vertical", 48))
sketch9.addConstraint(Sketcher.Constraint("Vertical", 50))
sketch9.addConstraint(Sketcher.Constraint("Horizontal", 51))
sketch9.addConstraint(Sketcher.Constraint("Coincident", 5, 3, 1, 3))
sketch9.addConstraint(Sketcher.Constraint("Coincident", 8, 3, 1, 3))
sketch9.addConstraint(Sketcher.Constraint("Coincident", 11, 3, 1, 3))
sketch9.addConstraint(Sketcher.Constraint("Coincident", 16, 3, 13, 3))
sketch9.addConstraint(Sketcher.Constraint("Coincident", 19, 3, 13, 3))
sketch9.addConstraint(Sketcher.Constraint("Coincident", 22, 3, 13, 3))
sketch9.addConstraint(Sketcher.Constraint("Coincident", 30, 3, 27, 3))
sketch9.addConstraint(Sketcher.Constraint("Coincident", 33, 3, 27, 3))
sketch9.addConstraint(Sketcher.Constraint("Coincident", 37, 3, 27, 3))
sketch9.addConstraint(Sketcher.Constraint("Coincident", 42, 3, 39, 3))
sketch9.addConstraint(Sketcher.Constraint("Coincident", 45, 3, 39, 3))
sketch9.addConstraint(Sketcher.Constraint("Coincident", 49, 3, 39, 3))
sketch9.addConstraint(Sketcher.Constraint("Equal", 1, 2))
sketch9.addConstraint(Sketcher.Constraint("Equal", 2, 5))
sketch9.addConstraint(Sketcher.Constraint("Equal", 5, 8))
sketch9.addConstraint(Sketcher.Constraint("Equal", 8, 11))
sketch9.addConstraint(Sketcher.Constraint("Equal", 11, 13))
sketch9.addConstraint(Sketcher.Constraint("Equal", 13, 16))
sketch9.addConstraint(Sketcher.Constraint("Equal", 16, 19))
sketch9.addConstraint(Sketcher.Constraint("Equal", 19, 22))
sketch9.addConstraint(Sketcher.Constraint("Equal", 22, 25))
sketch9.addConstraint(Sketcher.Constraint("Equal", 25, 27))
sketch9.addConstraint(Sketcher.Constraint("Equal", 27, 30))
sketch9.addConstraint(Sketcher.Constraint("Equal", 30, 33))
sketch9.addConstraint(Sketcher.Constraint("Equal", 33, 34))
sketch9.addConstraint(Sketcher.Constraint("Equal", 34, 37))
sketch9.addConstraint(Sketcher.Constraint("Equal", 37, 39))
sketch9.addConstraint(Sketcher.Constraint("Equal", 39, 42))
sketch9.addConstraint(Sketcher.Constraint("Equal", 42, 45))
sketch9.addConstraint(Sketcher.Constraint("Equal", 45, 46))
sketch9.addConstraint(Sketcher.Constraint("Equal", 46, 49))
sketch9.addConstraint(Sketcher.Constraint("Symmetric", 1, 3, 27, 3, -1, 1))
sketch9.addConstraint(Sketcher.Constraint("Symmetric", 13, 3, 39, 3, -1, 1))
sketch9.addConstraint(Sketcher.Constraint("Symmetric", 3, 2, 28, 2, -1, 1))
sketch9.addConstraint(Sketcher.Constraint("Symmetric", 6, 2, 31, 2, -1, 1))
sketch9.addConstraint(Sketcher.Constraint("Symmetric", 9, 2, 35, 2, -1, 1))
sketch9.addConstraint(Sketcher.Constraint("Symmetric", 12, 2, 38, 2, -1, 1))
sketch9.addConstraint(Sketcher.Constraint("Symmetric", 14, 2, 40, 2, -1, 1))
sketch9.addConstraint(Sketcher.Constraint("Symmetric", 17, 2, 43, 2, -1, 1))
sketch9.addConstraint(Sketcher.Constraint("Symmetric", 20, 2, 47, 2, -1, 1))
sketch9.addConstraint(Sketcher.Constraint("Symmetric", 23, 2, 50, 2, -1, 1))
sketch9.addConstraint(Sketcher.Constraint("Symmetric", 1, 3, 13, 3, -2))
sketch9.addConstraint(Sketcher.Constraint("Symmetric", 6, 2, 14, 2, -2))
sketch9.addConstraint(Sketcher.Constraint("Symmetric", 3, 2, 17, 2, -2))
sketch9.addConstraint(Sketcher.Constraint("Symmetric", 12, 2, 20, 2, -2))
sketch9.addConstraint(Sketcher.Constraint("Symmetric", 9, 2, 23, 2, -2))
sketch9.addConstraint(Sketcher.Constraint("Horizontal", 25, 3, 1, 2))
sketch9.addConstraint(Sketcher.Constraint("Horizontal", 4, 2, 5, 2))
sketch9.addConstraint(Sketcher.Constraint("Horizontal", 3, 2, 6, 2))
sketch9.addConstraint(Sketcher.Constraint("Horizontal", 0, 2, 8, 2))
sketch9.addConstraint(Sketcher.Constraint("Horizontal", 10, 2, 11, 2))
sketch9.addConstraint(Sketcher.Constraint("Horizontal", 1, 2, 25, 2))
sketch9.addConstraint(Sketcher.Constraint("Horizontal", 49, 3, 33, 2))
sketch9.addConstraint(Sketcher.Constraint("Horizontal", 33, 2, 45, 2))
sketch9.addConstraint(Sketcher.Constraint("Vertical", 0, 2, 2, 2))
sketch9.addConstraint(Sketcher.Constraint("Vertical", 6, 2, 9, 2))
sketch9.addConstraint(Sketcher.Constraint("Equal", 51, 4))
sketch9.addConstraint(Sketcher.Constraint("Radius", 1, 2.742))
sketch9.addConstraint(Sketcher.Constraint("DistanceX", -1, 1, 1, 3, 15.5))
sketch9.addConstraint(Sketcher.Constraint("DistanceY", 1, 3, -1, 1, 15.5))
sketch9.addConstraint(Sketcher.Constraint("DistanceY", 0, 2, -1, 1, 16.262))
pocket4 = body.newObject("PartDesign::Pocket", "Pocket003")
pocket4.Profile = sketch9
pocket4.Length = 1.016

doc.recompute()
